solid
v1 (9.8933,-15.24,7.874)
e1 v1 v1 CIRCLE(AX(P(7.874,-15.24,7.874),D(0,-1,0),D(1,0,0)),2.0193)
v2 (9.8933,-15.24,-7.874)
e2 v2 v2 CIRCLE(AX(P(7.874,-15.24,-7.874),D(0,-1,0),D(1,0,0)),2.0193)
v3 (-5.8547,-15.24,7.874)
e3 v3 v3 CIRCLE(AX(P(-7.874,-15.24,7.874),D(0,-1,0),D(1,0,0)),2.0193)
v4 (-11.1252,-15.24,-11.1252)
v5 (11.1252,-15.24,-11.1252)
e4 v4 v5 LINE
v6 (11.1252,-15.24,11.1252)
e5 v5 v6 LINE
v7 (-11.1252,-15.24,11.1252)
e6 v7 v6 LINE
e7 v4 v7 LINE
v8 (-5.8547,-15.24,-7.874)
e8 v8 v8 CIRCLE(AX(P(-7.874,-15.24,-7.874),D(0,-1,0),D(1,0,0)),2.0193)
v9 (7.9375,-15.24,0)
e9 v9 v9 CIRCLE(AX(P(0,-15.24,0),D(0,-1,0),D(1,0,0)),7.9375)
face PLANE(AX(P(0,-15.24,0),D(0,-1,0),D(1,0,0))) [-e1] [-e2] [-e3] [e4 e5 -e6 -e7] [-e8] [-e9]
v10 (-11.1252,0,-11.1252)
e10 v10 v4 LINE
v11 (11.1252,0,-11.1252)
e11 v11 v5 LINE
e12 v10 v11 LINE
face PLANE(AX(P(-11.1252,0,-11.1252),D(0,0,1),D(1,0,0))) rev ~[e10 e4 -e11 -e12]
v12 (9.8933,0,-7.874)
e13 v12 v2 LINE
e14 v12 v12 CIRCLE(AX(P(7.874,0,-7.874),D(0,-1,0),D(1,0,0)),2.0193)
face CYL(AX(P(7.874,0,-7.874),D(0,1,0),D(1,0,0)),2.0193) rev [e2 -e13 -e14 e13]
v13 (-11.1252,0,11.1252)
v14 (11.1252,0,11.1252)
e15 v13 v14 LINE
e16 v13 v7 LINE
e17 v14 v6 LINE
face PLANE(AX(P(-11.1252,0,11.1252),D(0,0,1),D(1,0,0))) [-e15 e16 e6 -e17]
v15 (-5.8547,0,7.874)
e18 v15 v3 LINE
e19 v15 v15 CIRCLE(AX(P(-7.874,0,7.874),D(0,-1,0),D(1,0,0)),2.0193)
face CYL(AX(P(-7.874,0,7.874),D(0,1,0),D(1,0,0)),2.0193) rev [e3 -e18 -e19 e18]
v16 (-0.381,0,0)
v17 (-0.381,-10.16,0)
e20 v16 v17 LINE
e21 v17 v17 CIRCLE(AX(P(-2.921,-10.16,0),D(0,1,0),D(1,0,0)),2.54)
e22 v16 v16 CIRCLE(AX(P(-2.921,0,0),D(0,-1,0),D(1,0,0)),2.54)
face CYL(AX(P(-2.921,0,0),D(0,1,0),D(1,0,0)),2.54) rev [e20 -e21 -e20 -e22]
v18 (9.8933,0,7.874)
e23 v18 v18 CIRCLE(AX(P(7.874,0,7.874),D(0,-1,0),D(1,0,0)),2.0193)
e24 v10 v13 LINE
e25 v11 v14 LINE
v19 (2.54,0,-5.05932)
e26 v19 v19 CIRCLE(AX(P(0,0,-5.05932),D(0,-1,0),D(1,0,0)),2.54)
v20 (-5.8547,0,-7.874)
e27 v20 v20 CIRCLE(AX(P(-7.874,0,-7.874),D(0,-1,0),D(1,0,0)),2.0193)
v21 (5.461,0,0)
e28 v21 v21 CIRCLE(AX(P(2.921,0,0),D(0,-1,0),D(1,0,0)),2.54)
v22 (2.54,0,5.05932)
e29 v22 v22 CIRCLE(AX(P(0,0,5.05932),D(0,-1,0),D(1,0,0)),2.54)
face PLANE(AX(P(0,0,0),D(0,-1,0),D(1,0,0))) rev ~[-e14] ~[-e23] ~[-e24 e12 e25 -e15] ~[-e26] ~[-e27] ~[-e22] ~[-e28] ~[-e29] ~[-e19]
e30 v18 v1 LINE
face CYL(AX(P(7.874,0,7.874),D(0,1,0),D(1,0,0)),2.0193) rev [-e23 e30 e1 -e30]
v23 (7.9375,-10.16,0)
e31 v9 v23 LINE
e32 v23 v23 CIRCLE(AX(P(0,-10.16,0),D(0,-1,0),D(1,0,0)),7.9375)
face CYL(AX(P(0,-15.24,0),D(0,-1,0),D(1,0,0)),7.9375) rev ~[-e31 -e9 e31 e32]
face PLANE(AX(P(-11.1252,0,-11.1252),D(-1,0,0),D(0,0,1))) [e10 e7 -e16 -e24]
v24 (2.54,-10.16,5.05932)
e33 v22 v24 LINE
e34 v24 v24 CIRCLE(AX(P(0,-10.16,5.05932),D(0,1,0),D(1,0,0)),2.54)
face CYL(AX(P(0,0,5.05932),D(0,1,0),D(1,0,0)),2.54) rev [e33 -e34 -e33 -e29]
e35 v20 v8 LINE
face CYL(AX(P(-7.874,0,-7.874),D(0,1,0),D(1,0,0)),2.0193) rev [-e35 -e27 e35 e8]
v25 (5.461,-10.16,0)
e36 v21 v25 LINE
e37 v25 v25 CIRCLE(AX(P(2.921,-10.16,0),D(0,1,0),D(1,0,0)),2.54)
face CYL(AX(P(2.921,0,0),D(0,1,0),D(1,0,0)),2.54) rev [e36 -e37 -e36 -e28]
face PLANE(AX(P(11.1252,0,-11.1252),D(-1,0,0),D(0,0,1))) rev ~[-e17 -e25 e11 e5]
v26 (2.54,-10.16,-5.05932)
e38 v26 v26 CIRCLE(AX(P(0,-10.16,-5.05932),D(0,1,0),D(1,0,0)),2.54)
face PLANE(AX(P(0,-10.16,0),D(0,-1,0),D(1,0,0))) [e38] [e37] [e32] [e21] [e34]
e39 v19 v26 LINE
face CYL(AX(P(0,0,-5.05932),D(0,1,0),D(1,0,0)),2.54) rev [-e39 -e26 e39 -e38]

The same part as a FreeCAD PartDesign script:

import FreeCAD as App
import Part
import Sketcher
from FreeCAD import Vector
Q = App.Units.Quantity

doc = App.newDocument("Part")
body = doc.addObject("PartDesign::Body", "Body")

sketch1 = body.newObject("Sketcher::SketchObject", "Sketch")
sketch1.AttachmentSupport = (doc.getObject("XZ_Plane"), [""])
sketch1.MapMode = "FlatFace"
sketch1.addGeometry([
    Part.LineSegment(Vector(-11.1, 11.1, 0), Vector(-11.1, -11.1, 0)),
    Part.LineSegment(Vector(-11.1, -11.1, 0), Vector(11.1, -11.1, 0)),
    Part.LineSegment(Vector(11.1, -11.1, 0), Vector(11.1, 11.1, 0)),
    Part.LineSegment(Vector(11.1, 11.1, 0), Vector(-11.1, 11.1, 0)),
    Part.Circle(Vector(-7.9, -7.9, 0), Vector(0, 0, 1), 2),
    Part.Circle(Vector(0, -5.1, 0), Vector(0, 0, 1), 2.5),
    Part.Circle(Vector(7.9, -7.9, 0), Vector(0, 0, 1), 2),
    Part.Circle(Vector(-2.9, 0, 0), Vector(0, 0, 1), 2.5),
    Part.Circle(Vector(-7.9, 7.9, 0), Vector(0, 0, 1), 2),
    Part.Circle(Vector(2.9, 0, 0), Vector(0, 0, 1), 2.5),
    Part.Circle(Vector(0, 5.1, 0), Vector(0, 0, 1), 2.5),
    Part.Circle(Vector(7.9, 7.9, 0), Vector(0, 0, 1), 2),
], False)
sketch1.addConstraint([
    Sketcher.Constraint("Coincident", 0, 2, 1, 1),
    Sketcher.Constraint("Coincident", 1, 2, 2, 1),
    Sketcher.Constraint("Coincident", 2, 2, 3, 1),
    Sketcher.Constraint("Coincident", 3, 2, 0, 1),
    Sketcher.Constraint("Vertical", 0),
    Sketcher.Constraint("Horizontal", 1),
    Sketcher.Constraint("Vertical", 2),
    Sketcher.Constraint("Horizontal", 3),
    Sketcher.Constraint("Equal", 4, 6),
    Sketcher.Constraint("Equal", 5, 7),
    Sketcher.Constraint("Equal", 6, 8),
    Sketcher.Constraint("Equal", 7, 9),
    Sketcher.Constraint("Equal", 9, 10),
    Sketcher.Constraint("Equal", 8, 11),
    Sketcher.Constraint("Symmetric", 6, 3, 8, 3, -1, 1),
    Sketcher.Constraint("Symmetric", 7, 3, 9, 3, -1, 1),
    Sketcher.Constraint("Symmetric", 5, 3, 10, 3, -1, 1),
    Sketcher.Constraint("Symmetric", 4, 3, 11, 3, -1, 1),
    Sketcher.Constraint("Symmetric", 0, 2, 2, 2, -1, 1),
    Sketcher.Constraint("Symmetric", 4, 3, 6, 3, -2),
    Sketcher.Constraint("PointOnObject", 5, 3, -2),
    Sketcher.Constraint("PointOnObject", 7, 3, -1),
    Sketcher.Constraint("Equal", 3, 0),
    Sketcher.Constraint("Diameter", 5, Q("0.2 in")),
    Sketcher.Constraint("Diameter", 4, Q("0.159 in")),
    Sketcher.Constraint("DistanceX", 1, 1, 1, 2, Q("0.876 in")),
    Sketcher.Constraint("DistanceX", 4, 3, -1, 1, Q("0.31 in")),
    Sketcher.Constraint("DistanceY", 4, 3, -1, 1, Q("0.31 in")),
    Sketcher.Constraint("DistanceX", 7, 3, 9, 3, Q("0.23 in")),
    Sketcher.Constraint("DistanceY", 5, 3, -1, 1, 5.05932),
])
pad1 = body.newObject("PartDesign::Pad", "Pad")
pad1.Profile = sketch1
pad1.Length = Q("0.6 in")

sketch2 = body.newObject("Sketcher::SketchObject", "Sketch001")
sketch2.AttachmentSupport = (doc.getObject("XZ_Plane"), [""])
sketch2.MapMode = "FlatFace"
sketch2.AttachmentOffset = App.Placement(Vector(0, 0, 0.6 * 25.4), App.Rotation())
sketch2.addGeometry(Part.Circle(Vector(0, 0, 0), Vector(0, 0, 1), 8), False)
sketch2.addConstraint([
    Sketcher.Constraint("Coincident", 0, 3, -1, 1),
    Sketcher.Constraint("Diameter", 0, Q("0.625 in")),
])
pocket1 = body.newObject("PartDesign::Pocket", "Pocket")
pocket1.Profile = sketch2
pocket1.Length = Q("0.2 in")

doc.recompute()
